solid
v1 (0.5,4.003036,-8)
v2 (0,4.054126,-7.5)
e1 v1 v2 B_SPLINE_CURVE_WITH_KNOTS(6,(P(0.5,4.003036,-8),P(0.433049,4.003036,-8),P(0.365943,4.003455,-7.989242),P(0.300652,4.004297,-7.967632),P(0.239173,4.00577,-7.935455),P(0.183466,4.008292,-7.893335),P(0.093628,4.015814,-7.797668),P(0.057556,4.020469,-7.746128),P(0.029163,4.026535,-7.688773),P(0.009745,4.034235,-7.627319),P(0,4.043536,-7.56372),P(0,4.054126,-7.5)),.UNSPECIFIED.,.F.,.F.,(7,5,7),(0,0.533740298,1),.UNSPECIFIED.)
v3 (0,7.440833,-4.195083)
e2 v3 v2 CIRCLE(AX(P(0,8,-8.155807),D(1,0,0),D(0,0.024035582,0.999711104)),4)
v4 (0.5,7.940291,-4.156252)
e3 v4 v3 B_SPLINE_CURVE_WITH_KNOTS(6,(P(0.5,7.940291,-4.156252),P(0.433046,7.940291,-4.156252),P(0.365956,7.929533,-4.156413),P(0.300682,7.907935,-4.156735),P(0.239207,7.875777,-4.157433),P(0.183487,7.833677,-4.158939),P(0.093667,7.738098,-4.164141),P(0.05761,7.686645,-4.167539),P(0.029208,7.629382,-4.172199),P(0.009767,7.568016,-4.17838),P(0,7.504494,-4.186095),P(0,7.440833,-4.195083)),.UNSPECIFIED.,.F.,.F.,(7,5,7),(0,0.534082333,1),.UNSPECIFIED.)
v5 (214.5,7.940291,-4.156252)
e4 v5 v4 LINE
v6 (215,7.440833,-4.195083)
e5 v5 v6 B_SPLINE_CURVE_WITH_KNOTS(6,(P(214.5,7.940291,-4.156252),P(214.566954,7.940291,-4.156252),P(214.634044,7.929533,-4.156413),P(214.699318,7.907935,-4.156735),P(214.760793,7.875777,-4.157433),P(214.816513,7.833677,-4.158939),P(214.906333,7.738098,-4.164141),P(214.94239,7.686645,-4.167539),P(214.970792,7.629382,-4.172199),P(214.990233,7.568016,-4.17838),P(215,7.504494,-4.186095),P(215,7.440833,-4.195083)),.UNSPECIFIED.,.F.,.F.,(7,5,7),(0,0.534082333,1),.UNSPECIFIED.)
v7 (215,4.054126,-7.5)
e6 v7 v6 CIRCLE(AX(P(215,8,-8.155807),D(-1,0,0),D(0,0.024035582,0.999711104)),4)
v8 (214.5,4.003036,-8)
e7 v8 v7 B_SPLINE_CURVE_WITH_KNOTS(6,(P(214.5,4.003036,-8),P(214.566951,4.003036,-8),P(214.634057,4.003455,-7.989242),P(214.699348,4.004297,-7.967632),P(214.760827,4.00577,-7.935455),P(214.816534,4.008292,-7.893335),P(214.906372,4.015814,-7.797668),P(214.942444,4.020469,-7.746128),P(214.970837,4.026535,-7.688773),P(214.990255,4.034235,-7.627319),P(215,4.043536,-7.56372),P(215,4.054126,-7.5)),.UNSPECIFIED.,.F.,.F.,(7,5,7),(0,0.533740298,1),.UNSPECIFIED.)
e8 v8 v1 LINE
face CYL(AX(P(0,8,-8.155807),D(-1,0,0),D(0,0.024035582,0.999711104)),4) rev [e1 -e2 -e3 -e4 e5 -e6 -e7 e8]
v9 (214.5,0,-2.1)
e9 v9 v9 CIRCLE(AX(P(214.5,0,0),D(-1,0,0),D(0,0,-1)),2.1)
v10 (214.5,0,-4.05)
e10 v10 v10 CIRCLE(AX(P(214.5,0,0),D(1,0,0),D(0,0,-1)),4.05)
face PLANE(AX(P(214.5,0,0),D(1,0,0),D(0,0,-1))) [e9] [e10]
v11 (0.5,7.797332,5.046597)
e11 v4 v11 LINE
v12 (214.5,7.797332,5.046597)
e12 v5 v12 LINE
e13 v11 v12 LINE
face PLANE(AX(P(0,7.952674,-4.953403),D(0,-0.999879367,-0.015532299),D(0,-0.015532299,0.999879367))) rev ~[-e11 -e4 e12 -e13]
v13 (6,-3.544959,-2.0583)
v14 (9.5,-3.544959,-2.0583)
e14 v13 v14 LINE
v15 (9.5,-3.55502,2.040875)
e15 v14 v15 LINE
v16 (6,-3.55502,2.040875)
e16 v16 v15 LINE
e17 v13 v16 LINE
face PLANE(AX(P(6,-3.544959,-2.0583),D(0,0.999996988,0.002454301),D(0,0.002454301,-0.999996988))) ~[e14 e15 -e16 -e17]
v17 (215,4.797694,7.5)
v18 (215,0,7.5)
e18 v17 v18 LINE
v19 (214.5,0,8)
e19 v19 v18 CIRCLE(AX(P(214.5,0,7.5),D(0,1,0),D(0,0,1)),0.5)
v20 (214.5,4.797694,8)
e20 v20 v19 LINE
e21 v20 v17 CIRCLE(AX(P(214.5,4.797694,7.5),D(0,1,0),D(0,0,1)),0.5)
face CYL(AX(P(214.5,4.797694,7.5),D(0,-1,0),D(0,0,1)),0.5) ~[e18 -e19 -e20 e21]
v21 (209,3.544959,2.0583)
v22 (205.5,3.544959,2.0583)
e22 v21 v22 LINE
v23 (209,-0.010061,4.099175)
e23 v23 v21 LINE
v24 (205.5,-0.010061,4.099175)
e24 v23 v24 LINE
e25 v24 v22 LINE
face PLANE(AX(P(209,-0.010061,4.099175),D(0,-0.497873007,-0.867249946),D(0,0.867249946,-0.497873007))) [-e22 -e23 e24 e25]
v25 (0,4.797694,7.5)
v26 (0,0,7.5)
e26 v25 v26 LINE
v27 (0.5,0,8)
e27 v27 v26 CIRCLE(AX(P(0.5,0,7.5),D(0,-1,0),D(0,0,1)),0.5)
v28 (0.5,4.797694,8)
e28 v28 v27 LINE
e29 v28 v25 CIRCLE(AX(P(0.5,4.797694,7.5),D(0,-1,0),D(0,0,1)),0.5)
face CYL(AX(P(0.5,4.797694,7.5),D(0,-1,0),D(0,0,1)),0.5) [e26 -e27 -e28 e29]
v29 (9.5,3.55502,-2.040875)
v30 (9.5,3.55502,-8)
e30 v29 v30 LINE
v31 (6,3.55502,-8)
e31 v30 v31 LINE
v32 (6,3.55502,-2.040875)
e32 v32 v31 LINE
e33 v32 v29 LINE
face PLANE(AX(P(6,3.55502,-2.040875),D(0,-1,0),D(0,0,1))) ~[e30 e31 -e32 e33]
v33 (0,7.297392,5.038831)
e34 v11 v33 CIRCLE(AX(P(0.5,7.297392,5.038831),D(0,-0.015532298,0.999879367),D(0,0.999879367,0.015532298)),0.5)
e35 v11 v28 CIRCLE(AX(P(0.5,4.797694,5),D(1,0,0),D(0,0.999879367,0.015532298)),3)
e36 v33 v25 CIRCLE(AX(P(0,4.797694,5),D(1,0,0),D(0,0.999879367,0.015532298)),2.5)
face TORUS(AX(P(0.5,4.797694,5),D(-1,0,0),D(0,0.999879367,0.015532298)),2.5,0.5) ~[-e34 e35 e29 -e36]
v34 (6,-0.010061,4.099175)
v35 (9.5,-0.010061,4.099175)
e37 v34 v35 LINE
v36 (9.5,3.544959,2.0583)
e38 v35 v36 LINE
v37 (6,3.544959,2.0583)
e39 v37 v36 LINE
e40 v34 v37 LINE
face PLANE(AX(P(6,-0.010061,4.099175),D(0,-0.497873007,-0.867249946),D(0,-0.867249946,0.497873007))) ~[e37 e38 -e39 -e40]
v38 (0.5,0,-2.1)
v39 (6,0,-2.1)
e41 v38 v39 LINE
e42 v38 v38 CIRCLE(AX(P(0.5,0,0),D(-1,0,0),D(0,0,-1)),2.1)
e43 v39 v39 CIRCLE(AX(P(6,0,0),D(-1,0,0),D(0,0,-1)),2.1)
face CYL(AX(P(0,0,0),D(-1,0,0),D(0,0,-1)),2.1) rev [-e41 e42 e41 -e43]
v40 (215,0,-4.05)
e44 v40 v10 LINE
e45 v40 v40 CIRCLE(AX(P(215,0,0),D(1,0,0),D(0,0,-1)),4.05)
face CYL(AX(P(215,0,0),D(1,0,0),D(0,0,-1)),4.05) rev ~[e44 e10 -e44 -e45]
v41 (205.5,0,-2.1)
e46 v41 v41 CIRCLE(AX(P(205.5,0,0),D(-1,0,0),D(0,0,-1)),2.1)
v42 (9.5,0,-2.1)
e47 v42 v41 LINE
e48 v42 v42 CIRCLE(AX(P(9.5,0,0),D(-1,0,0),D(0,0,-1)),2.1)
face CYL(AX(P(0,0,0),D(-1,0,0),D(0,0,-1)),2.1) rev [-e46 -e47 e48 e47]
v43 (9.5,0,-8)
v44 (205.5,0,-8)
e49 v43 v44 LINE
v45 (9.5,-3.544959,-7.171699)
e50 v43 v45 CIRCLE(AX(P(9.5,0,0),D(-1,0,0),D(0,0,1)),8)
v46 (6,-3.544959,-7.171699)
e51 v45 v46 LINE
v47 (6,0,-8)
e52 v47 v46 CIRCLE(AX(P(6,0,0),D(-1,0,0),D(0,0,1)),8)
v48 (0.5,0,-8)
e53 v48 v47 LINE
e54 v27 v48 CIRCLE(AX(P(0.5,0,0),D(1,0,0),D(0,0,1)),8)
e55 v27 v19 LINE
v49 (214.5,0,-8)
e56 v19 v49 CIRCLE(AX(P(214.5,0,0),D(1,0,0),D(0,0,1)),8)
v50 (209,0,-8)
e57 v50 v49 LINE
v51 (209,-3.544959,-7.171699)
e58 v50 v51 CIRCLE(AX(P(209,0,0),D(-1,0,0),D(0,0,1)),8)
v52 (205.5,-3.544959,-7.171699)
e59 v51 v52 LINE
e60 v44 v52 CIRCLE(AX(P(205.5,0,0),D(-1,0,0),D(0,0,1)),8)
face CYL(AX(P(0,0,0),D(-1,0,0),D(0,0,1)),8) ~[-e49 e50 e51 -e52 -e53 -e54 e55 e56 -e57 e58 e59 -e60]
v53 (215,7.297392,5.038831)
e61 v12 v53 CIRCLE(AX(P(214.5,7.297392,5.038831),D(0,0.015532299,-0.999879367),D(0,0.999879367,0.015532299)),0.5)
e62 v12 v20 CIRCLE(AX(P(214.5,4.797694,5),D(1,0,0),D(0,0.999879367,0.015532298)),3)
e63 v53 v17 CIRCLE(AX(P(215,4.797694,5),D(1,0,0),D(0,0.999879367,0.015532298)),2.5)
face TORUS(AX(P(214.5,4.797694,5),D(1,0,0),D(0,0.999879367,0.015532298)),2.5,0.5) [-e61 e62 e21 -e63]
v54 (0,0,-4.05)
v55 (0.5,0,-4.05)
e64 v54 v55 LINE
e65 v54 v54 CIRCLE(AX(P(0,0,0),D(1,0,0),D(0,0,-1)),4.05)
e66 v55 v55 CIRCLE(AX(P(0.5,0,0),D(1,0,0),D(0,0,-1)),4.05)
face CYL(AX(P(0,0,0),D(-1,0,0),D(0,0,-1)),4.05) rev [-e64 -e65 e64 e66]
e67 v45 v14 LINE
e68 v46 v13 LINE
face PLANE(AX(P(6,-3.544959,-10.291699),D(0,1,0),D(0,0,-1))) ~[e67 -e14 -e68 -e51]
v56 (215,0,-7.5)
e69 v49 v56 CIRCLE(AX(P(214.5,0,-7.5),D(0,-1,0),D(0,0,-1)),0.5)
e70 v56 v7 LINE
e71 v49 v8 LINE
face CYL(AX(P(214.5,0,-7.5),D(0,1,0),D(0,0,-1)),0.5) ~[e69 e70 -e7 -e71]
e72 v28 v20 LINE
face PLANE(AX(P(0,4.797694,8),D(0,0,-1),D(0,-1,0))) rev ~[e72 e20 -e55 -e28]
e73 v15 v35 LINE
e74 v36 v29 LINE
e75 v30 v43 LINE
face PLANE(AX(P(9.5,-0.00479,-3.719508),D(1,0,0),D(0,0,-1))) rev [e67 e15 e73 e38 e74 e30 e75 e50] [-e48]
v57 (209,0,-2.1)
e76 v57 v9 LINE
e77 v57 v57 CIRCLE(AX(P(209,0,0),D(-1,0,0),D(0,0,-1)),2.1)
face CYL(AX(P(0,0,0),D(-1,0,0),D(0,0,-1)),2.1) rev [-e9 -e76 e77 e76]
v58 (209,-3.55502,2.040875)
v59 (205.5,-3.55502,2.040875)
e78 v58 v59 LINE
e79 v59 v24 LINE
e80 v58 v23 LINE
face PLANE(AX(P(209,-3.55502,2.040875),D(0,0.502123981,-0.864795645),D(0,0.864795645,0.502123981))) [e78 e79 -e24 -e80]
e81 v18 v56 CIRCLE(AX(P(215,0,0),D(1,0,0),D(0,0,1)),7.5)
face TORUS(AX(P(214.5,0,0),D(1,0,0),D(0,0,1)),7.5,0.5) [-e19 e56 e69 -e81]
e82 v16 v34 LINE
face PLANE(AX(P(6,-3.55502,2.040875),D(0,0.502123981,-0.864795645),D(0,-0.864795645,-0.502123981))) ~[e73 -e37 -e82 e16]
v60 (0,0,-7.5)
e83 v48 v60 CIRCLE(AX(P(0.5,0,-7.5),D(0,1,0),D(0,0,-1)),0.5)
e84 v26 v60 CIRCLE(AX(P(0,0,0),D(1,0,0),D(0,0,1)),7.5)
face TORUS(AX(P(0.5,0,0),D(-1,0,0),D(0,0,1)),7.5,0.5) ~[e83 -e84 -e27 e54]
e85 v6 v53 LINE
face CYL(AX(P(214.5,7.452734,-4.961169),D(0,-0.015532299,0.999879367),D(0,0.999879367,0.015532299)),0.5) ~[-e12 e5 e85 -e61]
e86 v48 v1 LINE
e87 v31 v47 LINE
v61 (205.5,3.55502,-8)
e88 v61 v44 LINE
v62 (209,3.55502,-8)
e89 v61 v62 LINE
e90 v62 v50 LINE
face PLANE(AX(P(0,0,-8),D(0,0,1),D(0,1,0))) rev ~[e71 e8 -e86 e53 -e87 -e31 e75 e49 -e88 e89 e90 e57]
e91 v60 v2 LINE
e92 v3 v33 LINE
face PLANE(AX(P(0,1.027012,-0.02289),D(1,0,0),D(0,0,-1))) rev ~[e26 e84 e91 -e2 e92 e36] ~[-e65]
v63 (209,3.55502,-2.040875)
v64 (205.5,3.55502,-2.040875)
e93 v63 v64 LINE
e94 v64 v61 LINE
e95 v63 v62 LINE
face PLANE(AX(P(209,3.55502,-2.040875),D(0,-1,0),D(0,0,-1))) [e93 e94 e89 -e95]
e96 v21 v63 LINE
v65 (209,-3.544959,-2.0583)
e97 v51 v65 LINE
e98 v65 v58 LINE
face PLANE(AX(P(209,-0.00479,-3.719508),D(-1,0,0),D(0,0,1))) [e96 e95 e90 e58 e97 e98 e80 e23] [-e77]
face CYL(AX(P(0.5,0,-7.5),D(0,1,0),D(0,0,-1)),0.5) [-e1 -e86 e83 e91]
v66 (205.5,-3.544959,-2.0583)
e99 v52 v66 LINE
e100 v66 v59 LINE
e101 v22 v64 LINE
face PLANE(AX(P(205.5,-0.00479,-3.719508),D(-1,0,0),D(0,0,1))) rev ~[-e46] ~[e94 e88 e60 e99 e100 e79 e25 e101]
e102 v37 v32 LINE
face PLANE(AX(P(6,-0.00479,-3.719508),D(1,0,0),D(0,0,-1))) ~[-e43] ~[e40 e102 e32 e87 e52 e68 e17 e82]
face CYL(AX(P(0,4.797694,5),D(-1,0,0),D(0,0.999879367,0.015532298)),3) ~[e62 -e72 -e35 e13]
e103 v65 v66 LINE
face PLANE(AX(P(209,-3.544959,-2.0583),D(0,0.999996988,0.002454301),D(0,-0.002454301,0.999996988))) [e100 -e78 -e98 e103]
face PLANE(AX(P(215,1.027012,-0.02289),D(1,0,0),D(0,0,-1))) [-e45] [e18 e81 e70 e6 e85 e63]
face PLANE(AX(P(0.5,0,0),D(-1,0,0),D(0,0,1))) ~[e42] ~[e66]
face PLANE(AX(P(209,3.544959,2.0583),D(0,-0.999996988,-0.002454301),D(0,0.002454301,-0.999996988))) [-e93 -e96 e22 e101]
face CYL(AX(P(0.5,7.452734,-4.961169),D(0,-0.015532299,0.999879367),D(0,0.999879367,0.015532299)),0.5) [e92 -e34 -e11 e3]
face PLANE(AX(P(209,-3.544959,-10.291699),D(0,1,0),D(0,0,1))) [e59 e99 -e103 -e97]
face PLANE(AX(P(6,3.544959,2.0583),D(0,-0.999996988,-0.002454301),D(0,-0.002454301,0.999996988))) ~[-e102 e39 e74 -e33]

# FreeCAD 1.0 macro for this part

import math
import FreeCAD as App
import Part
import Sketcher
Q = App.Units.Quantity


def edges_at(feature, points):
    """Names of the edges that pass closest to the given points."""
    edges = feature.Shape.Edges
    near = lambda p: min(range(len(edges)), key=lambda i: edges[i].distToShape(Part.Vertex(*p))[0])
    return sorted({f"Edge{near(p) + 1}" for p in points})


def add_polygon(sketch, points):
    """Adds a closed chain of lines whose ends are joined by coincident constraints."""
    first, n = sketch.GeometryCount, len(points)
    for a, b in zip(points, points[1:] + points[:1]):
        sketch.addGeometry(Part.LineSegment(App.Vector(*a, 0), App.Vector(*b, 0)), False)
    for i in range(n):
        sketch.addConstraint(Sketcher.Constraint("Coincident", first + i, 2, first + (i + 1) % n, 1))

doc = App.newDocument("Part")
body = doc.addObject("PartDesign::Body", "Body")

# Sketch on YZ plane
sketch1 = body.newObject("Sketcher::SketchObject", "Sketch")
sketch1.AttachmentSupport = (doc.getObject("YZ_Plane"), [""])
sketch1.MapMode = "FlatFace"
sketch1.addGeometry(Part.LineSegment(App.Vector(0, -8, 0), App.Vector(5, -8, 0)), False)
sketch1.addGeometry(Part.ArcOfCircle(Part.Circle(App.Vector(5, -5, 0), App.Vector(0, 0, 1), 3), math.radians(-90), math.radians(1)), False)
sketch1.addGeometry(Part.LineSegment(App.Vector(8, -5, 0), App.Vector(7.8, 5, 0)), False)
sketch1.addGeometry(Part.ArcOfCircle(Part.Circle(App.Vector(4.8, 5, 0), App.Vector(0, 0, 1), 3), math.radians(1), math.radians(90)), False)
sketch1.addGeometry(Part.LineSegment(App.Vector(4.8, 8, 0), App.Vector(0, 8, 0)), False)
sketch1.addGeometry(Part.ArcOfCircle(Part.Circle(App.Vector(0, 0, 0), App.Vector(0, 0, 1), 8), math.radians(90), math.radians(270)), False)
sketch1.addGeometry(Part.Circle(App.Vector(0, 0, 0), App.Vector(0, 0, 1), 2.1), False)
sketch1.addConstraint(Sketcher.Constraint("Tangent", 0, 2, 1, 1))
sketch1.addConstraint(Sketcher.Constraint("Tangent", 1, 2, 2, 1))
sketch1.addConstraint(Sketcher.Constraint("Tangent", 2, 2, 3, 1))
sketch1.addConstraint(Sketcher.Constraint("Tangent", 3, 2, 4, 1))
sketch1.addConstraint(Sketcher.Constraint("Tangent", 4, 2, 5, 1))
sketch1.addConstraint(Sketcher.Constraint("Tangent", 5, 2, 0, 1))
sketch1.addConstraint(Sketcher.Constraint("Horizontal", 0))
sketch1.addConstraint(Sketcher.Constraint("Horizontal", 4))
sketch1.addConstraint(Sketcher.Constraint("Coincident", 5, 3, -1, 1))
sketch1.addConstraint(Sketcher.Constraint("Coincident", 6, 3, -1, 1))
sketch1.addConstraint(Sketcher.Constraint("Equal", 1, 3))
sketch1.addConstraint(Sketcher.Constraint("Radius", 1, Q("3 mm")))
sketch1.addConstraint(Sketcher.Constraint("Radius", 5, Q("8 mm")))
sketch1.addConstraint(Sketcher.Constraint("Diameter", 6, Q("4.2 mm")))
sketch1.addConstraint(Sketcher.Constraint("DistanceX", 0, 1, 0, 2, Q("4.953036 mm")))
sketch1.addConstraint(Sketcher.Constraint("DistanceX", 4, 2, 4, 1, Q("4.797694 mm")))
pad1 = body.newObject("PartDesign::Pad", "Pad")
pad1.Profile = sketch1
pad1.Length = 215
doc.recompute()

fillet = body.newObject("PartDesign::Fillet", "Fillet")
fillet.Base = (pad1, edges_at(pad1, [
    (0, 6.902, 7.138),
    (0, 7.875, 0.047),
    (215, 7.091, -7.105),
    (0, 7.091, -7.105),
    (0, 2.477, -8),
    (215, 7.875, 0.047),
    (215, 6.902, 7.138),
    (215, 2.399, 8),
    (215, -8, 0),
    (215, 2.477, -8),
    (0, -8, 0),
    (0, 2.399, 8),
]))
fillet.Radius = 0.5

# Sketch on YZ plane
sketch2 = body.newObject("Sketcher::SketchObject", "Sketch001")
sketch2.AttachmentSupport = (doc.getObject("YZ_Plane"), [""])
sketch2.MapMode = "FlatFace"
sketch2.AttachmentOffset = App.Placement(App.Vector(0, 0, 209), App.Rotation())
add_polygon(sketch2, [(3.6, -10.2), (3.6, -2), (3.5, 2.1), (0, 4.1), (-3.6, 2), (-3.5, -2.1), (-3.5, -10.3)])  # lines 0-6
sketch2.addConstraint(Sketcher.Constraint("Vertical", 0))
sketch2.addConstraint(Sketcher.Constraint("Vertical", 5))
sketch2.addConstraint(Sketcher.Constraint("Symmetric", 0, 2, 3, 2, -1, 1))
sketch2.addConstraint(Sketcher.Constraint("Symmetric", 1, 2, 4, 2, -1, 1))
sketch2.addConstraint(Sketcher.Constraint("Equal", 1, 2))
sketch2.addConstraint(Sketcher.Constraint("Equal", 2, 3))
sketch2.addConstraint(Sketcher.Constraint("DistanceY", 5, 2, 1, 2, Q("12.349999 mm")))
sketch2.addConstraint(Sketcher.Constraint("DistanceY", 5, 2, 5, 1, Q("8.233399 mm")))
sketch2.addConstraint(Sketcher.Constraint("DistanceY", 3, 2, 2, 2, Q("2.0583 mm")))
sketch2.addConstraint(Sketcher.Constraint("DistanceX", 4, 2, 2, 2, Q("3.534898 mm")))
sketch2.addConstraint(Sketcher.Constraint("DistanceY", 0, 1, 0, 2, Q("8.163695 mm")))
sketch2.addConstraint(Sketcher.Constraint("DistanceX", -1, 1, 0, 2, Q("3.55502 mm")))
pocket1 = body.newObject("PartDesign::Pocket", "Pocket")
pocket1.Profile = sketch2
pocket1.Length = 3.5

# Sketch on YZ plane
sketch3 = body.newObject("Sketcher::SketchObject", "Sketch002")
sketch3.AttachmentSupport = (doc.getObject("YZ_Plane"), [""])
sketch3.MapMode = "FlatFace"
sketch3.AttachmentOffset = App.Placement(App.Vector(0, 0, 215), App.Rotation())
sketch3.addGeometry(Part.Circle(App.Vector(0, 0, 0), App.Vector(0, 0, 1), 4), False)
sketch3.addConstraint(Sketcher.Constraint("Coincident", 0, 3, -1, 1))
sketch3.addConstraint(Sketcher.Constraint("Diameter", 0, Q("8.1 mm")))
pocket2 = body.newObject("PartDesign::Pocket", "Pocket001")
pocket2.Profile = sketch3
pocket2.Length = 0.5
doc.recompute()

datumplane = body.newObject("PartDesign::Plane", "DatumPlane")
datumplane.AttachmentSupport = (doc.getObject("YZ_Plane"), [""])
datumplane.MapMode = "FlatFace"
datumplane.AttachmentOffset = App.Placement(App.Vector(0, 0, 107.5), App.Rotation())
mirrored = body.newObject("PartDesign::Mirrored", "Mirrored")
mirrored.Originals = [pocket1, pocket2]
mirrored.MirrorPlane = (datumplane, [""])
body.Tip = mirrored

# Sketch on YZ plane
sketch4 = body.newObject("Sketcher::SketchObject", "Sketch003")
sketch4.AttachmentSupport = (doc.getObject("YZ_Plane"), [""])
sketch4.MapMode = "FlatFace"
sketch4.addGeometry(Part.LineSegment(App.Vector(8.3, -8.2, 0), App.Vector(4, -8.2, 0)), False)
sketch4.addGeometry(Part.ArcOfCircle(Part.Circle(App.Vector(8, -8.2, 0), App.Vector(0, 0, 1), 4), math.radians(89), math.radians(180)), False)
sketch4.addGeometry(Part.LineSegment(App.Vector(8.1, -4.2, 0), App.Vector(8.3, -8.2, 0)), False)
sketch4.addConstraint(Sketcher.Constraint("Coincident", 0, 2, 1, 2))
sketch4.addConstraint(Sketcher.Constraint("Coincident", 1, 1, 2, 1))
sketch4.addConstraint(Sketcher.Constraint("Coincident", 2, 2, 0, 1))
sketch4.addConstraint(Sketcher.Constraint("Horizontal", 0))
sketch4.addConstraint(Sketcher.Constraint("Horizontal", 1, 3, 0, 2))
sketch4.addConstraint(Sketcher.Constraint("Radius", 1, Q("4 mm")))
sketch4.addConstraint(Sketcher.Constraint("DistanceX", -1, 1, 1, 3, Q("8 mm")))
sketch4.addConstraint(Sketcher.Constraint("DistanceX", 0, 2, 0, 1, Q("4.298439 mm")))
sketch4.addConstraint(Sketcher.Constraint("Distance", 2, Q("4.003958 mm")))
sketch4.addConstraint(Sketcher.Constraint("DistanceY", 1, 3, -1, 1, Q("8.155807 mm")))
pocket3 = body.newObject("PartDesign::Pocket", "Pocket002")
pocket3.Profile = sketch4
pocket3.Type = "ThroughAll"
pocket3.Reversed = True

doc.recompute()
